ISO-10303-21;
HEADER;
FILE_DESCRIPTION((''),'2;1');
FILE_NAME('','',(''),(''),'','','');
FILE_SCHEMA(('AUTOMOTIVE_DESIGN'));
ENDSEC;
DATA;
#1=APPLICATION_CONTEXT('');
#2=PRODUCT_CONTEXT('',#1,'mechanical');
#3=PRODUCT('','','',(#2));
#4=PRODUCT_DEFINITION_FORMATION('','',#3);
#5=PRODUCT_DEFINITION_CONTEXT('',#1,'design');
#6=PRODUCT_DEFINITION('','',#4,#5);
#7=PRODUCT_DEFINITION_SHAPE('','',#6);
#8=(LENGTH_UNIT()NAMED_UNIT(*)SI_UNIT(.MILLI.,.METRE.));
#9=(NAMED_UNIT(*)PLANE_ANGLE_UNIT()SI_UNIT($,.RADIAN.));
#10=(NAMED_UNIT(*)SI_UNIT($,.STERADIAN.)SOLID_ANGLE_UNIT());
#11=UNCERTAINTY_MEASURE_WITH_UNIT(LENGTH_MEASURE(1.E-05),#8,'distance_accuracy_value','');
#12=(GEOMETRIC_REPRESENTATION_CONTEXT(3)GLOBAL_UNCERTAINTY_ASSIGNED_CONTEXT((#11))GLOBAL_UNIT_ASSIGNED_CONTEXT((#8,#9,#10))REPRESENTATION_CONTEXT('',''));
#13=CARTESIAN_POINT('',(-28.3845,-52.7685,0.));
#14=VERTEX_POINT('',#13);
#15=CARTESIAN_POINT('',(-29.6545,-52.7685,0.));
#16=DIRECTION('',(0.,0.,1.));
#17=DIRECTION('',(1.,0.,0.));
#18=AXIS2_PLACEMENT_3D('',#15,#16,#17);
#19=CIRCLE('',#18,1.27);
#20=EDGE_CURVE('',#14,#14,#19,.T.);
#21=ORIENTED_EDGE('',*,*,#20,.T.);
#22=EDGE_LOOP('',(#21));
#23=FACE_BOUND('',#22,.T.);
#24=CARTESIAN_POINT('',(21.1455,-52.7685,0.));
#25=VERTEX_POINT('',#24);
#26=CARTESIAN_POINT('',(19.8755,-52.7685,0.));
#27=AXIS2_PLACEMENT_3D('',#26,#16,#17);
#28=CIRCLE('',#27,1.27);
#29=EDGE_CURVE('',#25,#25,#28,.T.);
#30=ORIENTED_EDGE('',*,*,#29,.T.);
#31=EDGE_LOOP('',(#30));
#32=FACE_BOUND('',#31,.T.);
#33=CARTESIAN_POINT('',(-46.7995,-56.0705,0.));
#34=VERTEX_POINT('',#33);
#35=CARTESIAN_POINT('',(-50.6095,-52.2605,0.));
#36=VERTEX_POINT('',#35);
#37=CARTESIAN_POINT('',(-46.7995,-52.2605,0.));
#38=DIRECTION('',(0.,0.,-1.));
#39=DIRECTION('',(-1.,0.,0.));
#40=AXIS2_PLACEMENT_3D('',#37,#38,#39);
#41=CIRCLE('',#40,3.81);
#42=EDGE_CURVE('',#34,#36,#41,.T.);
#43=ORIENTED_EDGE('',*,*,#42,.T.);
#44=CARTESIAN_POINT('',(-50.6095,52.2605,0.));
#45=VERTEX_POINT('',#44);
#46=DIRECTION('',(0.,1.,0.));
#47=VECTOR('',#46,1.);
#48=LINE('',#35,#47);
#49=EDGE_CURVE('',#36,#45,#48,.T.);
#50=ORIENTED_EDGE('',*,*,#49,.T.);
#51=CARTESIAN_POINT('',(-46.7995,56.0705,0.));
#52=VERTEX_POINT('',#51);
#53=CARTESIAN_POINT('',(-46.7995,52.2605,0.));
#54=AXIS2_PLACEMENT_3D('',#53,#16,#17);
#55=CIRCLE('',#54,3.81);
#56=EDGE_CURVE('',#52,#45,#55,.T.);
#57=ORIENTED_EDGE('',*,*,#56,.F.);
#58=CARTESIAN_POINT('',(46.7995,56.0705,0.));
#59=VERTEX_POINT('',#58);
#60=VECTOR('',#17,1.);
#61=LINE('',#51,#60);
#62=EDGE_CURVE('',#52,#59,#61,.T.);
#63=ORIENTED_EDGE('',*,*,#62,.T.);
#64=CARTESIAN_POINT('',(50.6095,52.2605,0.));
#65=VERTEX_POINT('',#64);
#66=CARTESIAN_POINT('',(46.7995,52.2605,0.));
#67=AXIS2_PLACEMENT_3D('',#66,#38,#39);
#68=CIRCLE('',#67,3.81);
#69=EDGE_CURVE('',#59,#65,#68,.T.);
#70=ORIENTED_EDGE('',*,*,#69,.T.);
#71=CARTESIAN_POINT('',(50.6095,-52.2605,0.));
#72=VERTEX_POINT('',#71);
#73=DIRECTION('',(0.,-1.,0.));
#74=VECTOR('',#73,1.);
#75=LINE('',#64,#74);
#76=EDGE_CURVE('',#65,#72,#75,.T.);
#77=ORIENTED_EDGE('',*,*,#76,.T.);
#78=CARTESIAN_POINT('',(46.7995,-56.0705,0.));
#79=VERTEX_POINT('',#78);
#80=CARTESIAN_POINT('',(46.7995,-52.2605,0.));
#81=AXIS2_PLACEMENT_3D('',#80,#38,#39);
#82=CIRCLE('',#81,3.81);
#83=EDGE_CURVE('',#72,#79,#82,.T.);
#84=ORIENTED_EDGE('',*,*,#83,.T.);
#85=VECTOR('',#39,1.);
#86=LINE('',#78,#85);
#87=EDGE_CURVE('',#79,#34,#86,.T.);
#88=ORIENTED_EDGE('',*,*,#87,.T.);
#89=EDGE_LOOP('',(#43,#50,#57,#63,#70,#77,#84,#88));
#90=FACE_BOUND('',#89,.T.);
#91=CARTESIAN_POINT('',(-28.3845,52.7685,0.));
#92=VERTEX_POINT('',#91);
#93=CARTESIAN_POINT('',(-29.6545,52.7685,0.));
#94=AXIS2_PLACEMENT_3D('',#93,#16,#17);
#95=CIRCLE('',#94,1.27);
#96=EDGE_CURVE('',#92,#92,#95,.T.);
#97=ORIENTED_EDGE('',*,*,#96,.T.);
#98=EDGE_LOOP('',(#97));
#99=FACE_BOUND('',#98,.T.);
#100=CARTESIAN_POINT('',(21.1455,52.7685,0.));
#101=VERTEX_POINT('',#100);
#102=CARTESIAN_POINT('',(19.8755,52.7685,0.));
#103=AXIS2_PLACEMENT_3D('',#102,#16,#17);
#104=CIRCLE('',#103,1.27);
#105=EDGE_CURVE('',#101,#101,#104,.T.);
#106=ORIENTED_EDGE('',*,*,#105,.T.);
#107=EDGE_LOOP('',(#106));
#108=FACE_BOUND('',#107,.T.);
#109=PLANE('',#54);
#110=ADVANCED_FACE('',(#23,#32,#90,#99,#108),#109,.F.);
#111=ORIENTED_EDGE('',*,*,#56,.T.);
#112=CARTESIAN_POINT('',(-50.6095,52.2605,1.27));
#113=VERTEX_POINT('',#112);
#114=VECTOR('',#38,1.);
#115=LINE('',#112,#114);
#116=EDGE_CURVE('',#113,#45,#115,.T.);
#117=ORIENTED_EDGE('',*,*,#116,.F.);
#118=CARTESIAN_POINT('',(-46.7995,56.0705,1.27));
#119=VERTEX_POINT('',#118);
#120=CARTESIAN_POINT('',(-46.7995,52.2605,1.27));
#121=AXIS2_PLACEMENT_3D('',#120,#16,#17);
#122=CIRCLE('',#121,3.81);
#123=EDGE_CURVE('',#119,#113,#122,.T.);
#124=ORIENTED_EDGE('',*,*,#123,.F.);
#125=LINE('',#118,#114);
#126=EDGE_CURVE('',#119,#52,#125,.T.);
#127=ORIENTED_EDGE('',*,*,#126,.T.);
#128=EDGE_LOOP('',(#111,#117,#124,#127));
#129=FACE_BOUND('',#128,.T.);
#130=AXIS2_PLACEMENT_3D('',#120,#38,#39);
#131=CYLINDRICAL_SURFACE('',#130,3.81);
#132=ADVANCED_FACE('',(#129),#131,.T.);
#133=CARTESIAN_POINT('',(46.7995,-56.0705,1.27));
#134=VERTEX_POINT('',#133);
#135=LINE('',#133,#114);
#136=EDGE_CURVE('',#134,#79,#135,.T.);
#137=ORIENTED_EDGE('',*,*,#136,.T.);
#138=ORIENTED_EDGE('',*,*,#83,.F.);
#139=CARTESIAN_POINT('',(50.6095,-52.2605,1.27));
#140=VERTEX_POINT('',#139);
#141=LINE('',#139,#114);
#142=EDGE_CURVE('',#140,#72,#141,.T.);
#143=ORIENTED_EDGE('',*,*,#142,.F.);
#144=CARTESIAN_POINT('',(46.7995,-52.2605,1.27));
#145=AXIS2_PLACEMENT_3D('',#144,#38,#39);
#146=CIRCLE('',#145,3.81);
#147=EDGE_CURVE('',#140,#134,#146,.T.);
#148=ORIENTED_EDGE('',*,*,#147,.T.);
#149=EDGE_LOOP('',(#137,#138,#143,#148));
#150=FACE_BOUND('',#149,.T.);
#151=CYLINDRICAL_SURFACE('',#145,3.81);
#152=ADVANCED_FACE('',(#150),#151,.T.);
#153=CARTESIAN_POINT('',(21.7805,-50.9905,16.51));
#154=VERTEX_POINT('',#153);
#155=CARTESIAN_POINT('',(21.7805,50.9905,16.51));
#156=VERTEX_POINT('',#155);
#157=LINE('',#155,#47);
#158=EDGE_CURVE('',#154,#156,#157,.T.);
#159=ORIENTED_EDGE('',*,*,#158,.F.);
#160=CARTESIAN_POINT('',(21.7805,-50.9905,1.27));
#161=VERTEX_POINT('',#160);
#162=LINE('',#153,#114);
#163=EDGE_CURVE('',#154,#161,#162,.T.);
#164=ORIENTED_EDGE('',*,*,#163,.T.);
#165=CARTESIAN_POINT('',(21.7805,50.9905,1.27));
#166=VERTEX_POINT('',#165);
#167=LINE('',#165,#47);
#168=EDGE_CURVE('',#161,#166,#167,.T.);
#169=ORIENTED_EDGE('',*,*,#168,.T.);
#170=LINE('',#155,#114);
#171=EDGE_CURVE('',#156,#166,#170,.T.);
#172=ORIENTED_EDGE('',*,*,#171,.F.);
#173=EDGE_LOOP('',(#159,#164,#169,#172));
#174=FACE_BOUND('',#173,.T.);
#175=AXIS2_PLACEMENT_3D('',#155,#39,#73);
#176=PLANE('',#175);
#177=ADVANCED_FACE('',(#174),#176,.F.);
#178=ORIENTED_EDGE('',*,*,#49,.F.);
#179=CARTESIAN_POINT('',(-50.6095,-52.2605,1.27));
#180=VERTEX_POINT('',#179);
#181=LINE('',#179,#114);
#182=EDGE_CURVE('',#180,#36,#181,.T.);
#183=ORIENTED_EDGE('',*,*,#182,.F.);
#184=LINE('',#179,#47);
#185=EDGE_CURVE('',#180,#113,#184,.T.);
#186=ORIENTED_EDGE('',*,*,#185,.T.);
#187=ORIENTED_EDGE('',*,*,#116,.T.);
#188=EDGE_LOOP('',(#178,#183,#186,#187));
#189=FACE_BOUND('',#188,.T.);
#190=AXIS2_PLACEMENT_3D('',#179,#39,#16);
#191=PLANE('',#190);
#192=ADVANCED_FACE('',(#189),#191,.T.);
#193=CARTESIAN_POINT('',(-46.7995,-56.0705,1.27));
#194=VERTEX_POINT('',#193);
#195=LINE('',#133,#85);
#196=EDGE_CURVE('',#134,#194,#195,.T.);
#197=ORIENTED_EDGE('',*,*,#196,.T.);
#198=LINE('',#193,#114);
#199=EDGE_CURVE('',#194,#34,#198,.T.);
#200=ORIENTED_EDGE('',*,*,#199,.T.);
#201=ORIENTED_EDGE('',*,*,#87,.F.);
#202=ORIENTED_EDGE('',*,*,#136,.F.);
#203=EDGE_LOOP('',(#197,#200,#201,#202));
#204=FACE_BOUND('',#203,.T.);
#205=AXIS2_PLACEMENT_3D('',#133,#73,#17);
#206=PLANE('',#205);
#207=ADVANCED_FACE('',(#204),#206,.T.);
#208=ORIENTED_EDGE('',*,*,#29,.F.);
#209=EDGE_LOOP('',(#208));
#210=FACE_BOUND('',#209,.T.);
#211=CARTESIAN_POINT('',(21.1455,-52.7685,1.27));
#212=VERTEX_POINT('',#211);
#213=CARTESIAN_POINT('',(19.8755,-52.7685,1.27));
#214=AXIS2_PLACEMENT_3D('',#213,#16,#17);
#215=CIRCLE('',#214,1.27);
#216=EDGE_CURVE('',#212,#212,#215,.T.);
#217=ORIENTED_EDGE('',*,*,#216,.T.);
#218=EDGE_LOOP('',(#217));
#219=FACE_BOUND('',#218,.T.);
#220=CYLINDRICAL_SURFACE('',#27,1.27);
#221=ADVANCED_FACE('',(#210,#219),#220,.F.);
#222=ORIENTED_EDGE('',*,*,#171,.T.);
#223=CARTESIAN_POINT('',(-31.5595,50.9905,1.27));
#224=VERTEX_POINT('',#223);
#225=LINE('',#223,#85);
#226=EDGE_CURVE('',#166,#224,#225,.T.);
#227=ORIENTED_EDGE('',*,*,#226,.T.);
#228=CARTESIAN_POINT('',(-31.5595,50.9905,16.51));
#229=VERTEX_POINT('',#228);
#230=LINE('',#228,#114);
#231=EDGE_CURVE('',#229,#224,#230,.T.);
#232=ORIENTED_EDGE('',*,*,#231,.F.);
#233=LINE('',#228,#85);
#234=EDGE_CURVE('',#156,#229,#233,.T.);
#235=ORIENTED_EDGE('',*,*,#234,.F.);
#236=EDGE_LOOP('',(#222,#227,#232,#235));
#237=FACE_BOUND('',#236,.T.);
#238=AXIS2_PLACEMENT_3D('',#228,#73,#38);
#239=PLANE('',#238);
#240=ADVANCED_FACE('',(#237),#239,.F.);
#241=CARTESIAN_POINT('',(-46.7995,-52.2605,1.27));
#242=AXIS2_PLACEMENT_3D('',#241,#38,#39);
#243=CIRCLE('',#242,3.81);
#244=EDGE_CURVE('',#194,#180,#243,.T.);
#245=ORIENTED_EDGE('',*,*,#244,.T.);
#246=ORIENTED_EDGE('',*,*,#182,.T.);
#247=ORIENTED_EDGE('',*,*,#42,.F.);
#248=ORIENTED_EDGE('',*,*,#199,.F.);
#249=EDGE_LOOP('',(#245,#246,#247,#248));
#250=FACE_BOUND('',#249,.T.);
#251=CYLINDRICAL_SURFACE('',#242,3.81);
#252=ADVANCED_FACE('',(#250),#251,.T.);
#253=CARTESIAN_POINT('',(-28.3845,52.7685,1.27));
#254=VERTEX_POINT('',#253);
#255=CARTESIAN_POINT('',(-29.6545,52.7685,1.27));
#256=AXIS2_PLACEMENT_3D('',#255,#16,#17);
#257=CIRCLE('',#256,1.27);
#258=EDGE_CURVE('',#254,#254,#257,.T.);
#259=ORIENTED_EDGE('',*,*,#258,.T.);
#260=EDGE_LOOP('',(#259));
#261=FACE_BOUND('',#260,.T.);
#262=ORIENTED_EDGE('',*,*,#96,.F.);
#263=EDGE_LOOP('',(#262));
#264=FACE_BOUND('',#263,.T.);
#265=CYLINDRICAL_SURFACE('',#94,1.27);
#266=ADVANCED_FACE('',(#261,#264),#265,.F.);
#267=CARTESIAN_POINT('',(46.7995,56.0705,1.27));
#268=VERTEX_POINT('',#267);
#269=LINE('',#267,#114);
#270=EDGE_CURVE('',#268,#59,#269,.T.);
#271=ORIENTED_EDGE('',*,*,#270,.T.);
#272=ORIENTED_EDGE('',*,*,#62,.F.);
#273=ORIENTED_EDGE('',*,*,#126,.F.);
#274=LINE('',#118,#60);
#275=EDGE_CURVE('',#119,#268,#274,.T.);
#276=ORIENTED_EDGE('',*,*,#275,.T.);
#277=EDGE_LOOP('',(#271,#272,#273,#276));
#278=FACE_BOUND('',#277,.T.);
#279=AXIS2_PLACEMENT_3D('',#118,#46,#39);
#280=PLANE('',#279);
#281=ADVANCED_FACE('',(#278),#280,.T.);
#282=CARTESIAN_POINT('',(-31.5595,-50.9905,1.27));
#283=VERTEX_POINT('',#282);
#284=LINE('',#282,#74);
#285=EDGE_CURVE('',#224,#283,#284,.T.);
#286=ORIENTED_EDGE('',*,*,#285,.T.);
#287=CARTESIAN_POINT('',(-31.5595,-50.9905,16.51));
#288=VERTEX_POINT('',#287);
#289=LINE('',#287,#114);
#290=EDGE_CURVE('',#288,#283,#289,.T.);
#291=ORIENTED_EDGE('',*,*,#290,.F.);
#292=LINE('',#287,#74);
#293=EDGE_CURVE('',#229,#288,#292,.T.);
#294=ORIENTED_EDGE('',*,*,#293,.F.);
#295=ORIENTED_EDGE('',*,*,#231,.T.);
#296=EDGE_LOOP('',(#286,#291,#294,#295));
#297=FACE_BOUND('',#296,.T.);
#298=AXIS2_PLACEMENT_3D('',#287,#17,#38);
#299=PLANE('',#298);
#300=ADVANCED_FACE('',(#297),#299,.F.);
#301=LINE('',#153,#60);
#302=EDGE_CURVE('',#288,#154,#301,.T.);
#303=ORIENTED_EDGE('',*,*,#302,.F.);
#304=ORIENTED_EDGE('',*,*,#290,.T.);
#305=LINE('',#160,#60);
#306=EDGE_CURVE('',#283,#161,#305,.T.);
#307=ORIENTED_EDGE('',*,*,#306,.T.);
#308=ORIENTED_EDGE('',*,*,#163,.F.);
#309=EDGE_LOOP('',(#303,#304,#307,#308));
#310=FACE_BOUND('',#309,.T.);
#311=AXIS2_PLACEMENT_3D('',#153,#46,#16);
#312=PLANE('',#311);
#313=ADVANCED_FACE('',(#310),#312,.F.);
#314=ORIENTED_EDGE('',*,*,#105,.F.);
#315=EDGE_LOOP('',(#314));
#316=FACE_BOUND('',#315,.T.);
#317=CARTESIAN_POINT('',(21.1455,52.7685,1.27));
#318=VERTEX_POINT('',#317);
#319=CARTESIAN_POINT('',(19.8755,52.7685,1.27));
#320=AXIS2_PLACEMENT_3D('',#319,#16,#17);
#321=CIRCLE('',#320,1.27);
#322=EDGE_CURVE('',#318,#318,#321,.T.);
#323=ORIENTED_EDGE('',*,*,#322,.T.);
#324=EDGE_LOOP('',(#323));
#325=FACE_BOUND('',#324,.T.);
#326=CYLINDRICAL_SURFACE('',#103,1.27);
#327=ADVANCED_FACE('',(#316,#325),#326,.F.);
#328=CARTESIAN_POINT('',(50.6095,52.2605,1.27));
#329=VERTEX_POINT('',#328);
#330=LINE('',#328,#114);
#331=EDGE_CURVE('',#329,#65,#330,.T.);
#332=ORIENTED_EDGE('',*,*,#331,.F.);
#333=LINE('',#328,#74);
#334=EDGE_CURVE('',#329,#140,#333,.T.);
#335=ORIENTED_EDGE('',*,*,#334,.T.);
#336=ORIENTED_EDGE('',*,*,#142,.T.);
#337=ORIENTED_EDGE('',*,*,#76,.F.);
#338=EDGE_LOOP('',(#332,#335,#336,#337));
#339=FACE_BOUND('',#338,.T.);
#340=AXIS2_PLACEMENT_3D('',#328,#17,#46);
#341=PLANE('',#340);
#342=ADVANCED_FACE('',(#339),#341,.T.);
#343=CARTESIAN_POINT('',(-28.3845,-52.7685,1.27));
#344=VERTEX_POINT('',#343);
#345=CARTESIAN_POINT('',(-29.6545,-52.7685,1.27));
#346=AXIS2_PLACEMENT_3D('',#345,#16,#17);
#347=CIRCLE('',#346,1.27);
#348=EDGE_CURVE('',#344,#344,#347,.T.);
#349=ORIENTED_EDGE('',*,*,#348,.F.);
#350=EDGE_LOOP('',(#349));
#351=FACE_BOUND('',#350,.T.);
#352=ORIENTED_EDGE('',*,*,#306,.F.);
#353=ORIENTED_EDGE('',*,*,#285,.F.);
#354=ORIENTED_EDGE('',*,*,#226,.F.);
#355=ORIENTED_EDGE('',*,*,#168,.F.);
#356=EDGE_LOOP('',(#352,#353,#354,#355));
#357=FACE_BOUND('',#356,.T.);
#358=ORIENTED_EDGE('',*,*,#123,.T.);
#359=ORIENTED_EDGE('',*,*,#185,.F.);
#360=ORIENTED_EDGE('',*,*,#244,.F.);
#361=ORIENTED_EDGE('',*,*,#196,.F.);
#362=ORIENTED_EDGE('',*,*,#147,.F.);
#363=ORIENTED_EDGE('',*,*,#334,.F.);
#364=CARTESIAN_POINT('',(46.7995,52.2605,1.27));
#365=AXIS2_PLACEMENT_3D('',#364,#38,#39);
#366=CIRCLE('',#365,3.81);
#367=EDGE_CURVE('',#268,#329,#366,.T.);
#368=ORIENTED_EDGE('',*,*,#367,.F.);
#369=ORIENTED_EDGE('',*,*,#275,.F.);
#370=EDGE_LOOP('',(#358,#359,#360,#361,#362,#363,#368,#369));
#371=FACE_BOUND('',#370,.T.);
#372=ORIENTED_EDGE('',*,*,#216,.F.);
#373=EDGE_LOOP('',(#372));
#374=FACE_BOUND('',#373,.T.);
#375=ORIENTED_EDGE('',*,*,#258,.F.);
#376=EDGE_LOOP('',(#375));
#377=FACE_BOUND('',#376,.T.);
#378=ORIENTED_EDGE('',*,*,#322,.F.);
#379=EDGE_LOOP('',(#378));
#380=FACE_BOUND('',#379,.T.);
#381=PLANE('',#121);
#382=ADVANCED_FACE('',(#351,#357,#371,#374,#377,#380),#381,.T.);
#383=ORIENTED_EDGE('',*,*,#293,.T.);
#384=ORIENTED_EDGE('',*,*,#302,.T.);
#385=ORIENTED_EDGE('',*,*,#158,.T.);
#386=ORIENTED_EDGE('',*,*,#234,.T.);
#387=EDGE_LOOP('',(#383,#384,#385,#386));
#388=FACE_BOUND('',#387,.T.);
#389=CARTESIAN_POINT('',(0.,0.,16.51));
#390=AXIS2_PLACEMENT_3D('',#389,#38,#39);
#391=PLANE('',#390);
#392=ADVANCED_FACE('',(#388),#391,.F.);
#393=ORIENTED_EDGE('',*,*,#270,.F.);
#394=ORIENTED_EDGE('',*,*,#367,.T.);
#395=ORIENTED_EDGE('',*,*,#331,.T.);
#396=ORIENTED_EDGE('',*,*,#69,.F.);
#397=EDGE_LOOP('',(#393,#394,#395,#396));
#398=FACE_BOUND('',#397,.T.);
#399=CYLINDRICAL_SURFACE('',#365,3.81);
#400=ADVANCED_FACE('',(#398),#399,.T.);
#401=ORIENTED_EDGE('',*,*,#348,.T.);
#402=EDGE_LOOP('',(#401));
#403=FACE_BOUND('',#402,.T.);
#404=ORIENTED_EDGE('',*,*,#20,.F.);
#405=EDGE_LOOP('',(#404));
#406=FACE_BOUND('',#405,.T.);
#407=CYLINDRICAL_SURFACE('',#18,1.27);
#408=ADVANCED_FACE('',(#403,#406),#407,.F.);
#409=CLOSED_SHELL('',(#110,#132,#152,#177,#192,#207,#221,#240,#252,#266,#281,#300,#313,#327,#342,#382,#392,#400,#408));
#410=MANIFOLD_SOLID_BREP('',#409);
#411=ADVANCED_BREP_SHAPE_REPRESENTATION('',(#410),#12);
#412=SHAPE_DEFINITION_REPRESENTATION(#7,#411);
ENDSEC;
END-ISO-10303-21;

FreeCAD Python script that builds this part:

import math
import FreeCAD as App
import Part
import Sketcher
Q = App.Units.Quantity

doc = App.newDocument("Part")
body = doc.addObject("PartDesign::Body", "Body")

# Sketch on XY plane
sketch1 = doc.addObject("Sketcher::SketchObject", "Sketch")
body.addObject(sketch1)
sketch1.AttachmentSupport = (doc.XY_Plane, [""])
sketch1.MapMode = "FlatFace"
sketch1.addGeometry([
    Part.LineSegment(App.Vector(46.8, 56.1, 0), App.Vector(-46.8, 56.1, 0)),  # 0
    Part.ArcOfCircle(Part.Circle(App.Vector(-46.8, 52.3, 0), App.Vector(0, 0, 1), 3.8), math.radians(90), math.radians(180)),  # 1
    Part.LineSegment(App.Vector(-50.6, 52.3, 0), App.Vector(-50.6, -52.3, 0)),  # 2
    Part.ArcOfCircle(Part.Circle(App.Vector(-46.8, -52.3, 0), App.Vector(0, 0, 1), 3.8), math.radians(-180), math.radians(-90)),  # 3
    Part.LineSegment(App.Vector(-46.8, -56.1, 0), App.Vector(46.8, -56.1, 0)),  # 4
    Part.ArcOfCircle(Part.Circle(App.Vector(46.8, -52.3, 0), App.Vector(0, 0, 1), 3.8), math.radians(-90), math.radians(0)),  # 5
    Part.LineSegment(App.Vector(50.6, -52.3, 0), App.Vector(50.6, 52.3, 0)),  # 6
    Part.ArcOfCircle(Part.Circle(App.Vector(46.8, 52.3, 0), App.Vector(0, 0, 1), 3.8), math.radians(0), math.radians(90)),  # 7
], False)
sketch1.addConstraint([
    Sketcher.Constraint("Tangent", 0, 2, 1, 1),
    Sketcher.Constraint("Tangent", 1, 2, 2, 1),
    Sketcher.Constraint("Tangent", 2, 2, 3, 1),
    Sketcher.Constraint("Tangent", 3, 2, 4, 1),
    Sketcher.Constraint("Tangent", 4, 2, 5, 1),
    Sketcher.Constraint("Tangent", 5, 2, 6, 1),
    Sketcher.Constraint("Tangent", 6, 2, 7, 1),
    Sketcher.Constraint("Tangent", 7, 2, 0, 1),
    Sketcher.Constraint("Horizontal", 0),
    Sketcher.Constraint("Vertical", 2),
    Sketcher.Constraint("Horizontal", 4),
    Sketcher.Constraint("Vertical", 6),
    Sketcher.Constraint("Equal", 1, 3),
    Sketcher.Constraint("Equal", 3, 5),
    Sketcher.Constraint("Equal", 5, 7),
    Sketcher.Constraint("Symmetric", 1, 3, 5, 3, -1, 1),
    Sketcher.Constraint("Radius", 1, Q("0.15 in")),
    Sketcher.Constraint("DistanceX", 0, 2, 0, 1, Q("3.685 in")),
    Sketcher.Constraint("DistanceY", 2, 2, 2, 1, Q("4.115 in")),
])
pad1 = doc.addObject("PartDesign::Pad", "Pad")
body.addObject(pad1)
pad1.Profile = sketch1
pad1.Length = Q("0.05 in")

# Sketch on XY plane
sketch2 = doc.addObject("Sketcher::SketchObject", "Sketch001")
body.addObject(sketch2)
sketch2.AttachmentSupport = (doc.XY_Plane, [""])
sketch2.MapMode = "FlatFace"
sketch2.AttachmentOffset = App.Placement(App.Vector(0, 0, 0.05 * 25.4), App.Rotation())
sketch2.addGeometry([
    Part.LineSegment(App.Vector(-32, 51, 0), App.Vector(-32, -51, 0)),
    Part.LineSegment(App.Vector(-32, -51, 0), App.Vector(22, -51, 0)),
    Part.LineSegment(App.Vector(22, -51, 0), App.Vector(22, 51, 0)),
    Part.LineSegment(App.Vector(22, 51, 0), App.Vector(-32, 51, 0)),
], False)
sketch2.addConstraint([
    Sketcher.Constraint("Coincident", 0, 2, 1, 1),
    Sketcher.Constraint("Coincident", 1, 2, 2, 1),
    Sketcher.Constraint("Coincident", 2, 2, 3, 1),
    Sketcher.Constraint("Coincident", 3, 2, 0, 1),
    Sketcher.Constraint("Vertical", 0),
    Sketcher.Constraint("Horizontal", 1),
    Sketcher.Constraint("Vertical", 2),
    Sketcher.Constraint("Horizontal", 3),
    Sketcher.Constraint("DistanceX", 1, 1, 1, 2, Q("2.1 in")),
    Sketcher.Constraint("DistanceY", 0, 2, 0, 1, Q("4.015 in")),
    Sketcher.Constraint("DistanceX", 0, 2, -1, 1, Q("1.2425 in")),
    Sketcher.Constraint("DistanceY", 0, 2, -1, 1, Q("2.0075 in")),
])
pad2 = doc.addObject("PartDesign::Pad", "Pad001")
body.addObject(pad2)
pad2.Profile = sketch2
pad2.Length = Q("0.6 in")

# Sketch on XY plane
sketch3 = doc.addObject("Sketcher::SketchObject", "Sketch002")
body.addObject(sketch3)
sketch3.AttachmentSupport = (doc.XY_Plane, [""])
sketch3.MapMode = "FlatFace"
sketch3.AttachmentOffset = App.Placement(App.Vector(0, 0, 0.05 * 25.4), App.Rotation())
sketch3.addGeometry([
    Part.Circle(App.Vector(-29.7, 52.8, 0), App.Vector(0, 0, 1), 1.3),
    Part.Circle(App.Vector(19.9, 52.8, 0), App.Vector(0, 0, 1), 1.3),
    Part.Circle(App.Vector(-29.7, -52.8, 0), App.Vector(0, 0, 1), 1.3),
    Part.Circle(App.Vector(19.9, -52.8, 0), App.Vector(0, 0, 1), 1.3),
], False)
sketch3.addConstraint([
    Sketcher.Constraint("Equal", 0, 1),
    Sketcher.Constraint("Equal", 1, 2),
    Sketcher.Constraint("Equal", 2, 3),
    Sketcher.Constraint("Symmetric", 0, 3, 2, 3, -1),
    Sketcher.Constraint("Symmetric", 1, 3, 3, 3, -1),
    Sketcher.Constraint("Horizontal", 0, 3, 1, 3),
    Sketcher.Constraint("Diameter", 0, Q("0.1 in")),
    Sketcher.Constraint("DistanceX", 0, 3, 1, 3, Q("1.95 in")),
    Sketcher.Constraint("DistanceY", 2, 3, 0, 3, Q("4.155 in")),
    Sketcher.Constraint("DistanceX", 0, 3, -1, 1, Q("1.1675 in")),
])
pocket1 = doc.addObject("PartDesign::Pocket", "Pocket")
body.addObject(pocket1)
pocket1.Profile = sketch3
pocket1.Type = "ThroughAll"
pocket1.Midplane = True

doc.recompute()
